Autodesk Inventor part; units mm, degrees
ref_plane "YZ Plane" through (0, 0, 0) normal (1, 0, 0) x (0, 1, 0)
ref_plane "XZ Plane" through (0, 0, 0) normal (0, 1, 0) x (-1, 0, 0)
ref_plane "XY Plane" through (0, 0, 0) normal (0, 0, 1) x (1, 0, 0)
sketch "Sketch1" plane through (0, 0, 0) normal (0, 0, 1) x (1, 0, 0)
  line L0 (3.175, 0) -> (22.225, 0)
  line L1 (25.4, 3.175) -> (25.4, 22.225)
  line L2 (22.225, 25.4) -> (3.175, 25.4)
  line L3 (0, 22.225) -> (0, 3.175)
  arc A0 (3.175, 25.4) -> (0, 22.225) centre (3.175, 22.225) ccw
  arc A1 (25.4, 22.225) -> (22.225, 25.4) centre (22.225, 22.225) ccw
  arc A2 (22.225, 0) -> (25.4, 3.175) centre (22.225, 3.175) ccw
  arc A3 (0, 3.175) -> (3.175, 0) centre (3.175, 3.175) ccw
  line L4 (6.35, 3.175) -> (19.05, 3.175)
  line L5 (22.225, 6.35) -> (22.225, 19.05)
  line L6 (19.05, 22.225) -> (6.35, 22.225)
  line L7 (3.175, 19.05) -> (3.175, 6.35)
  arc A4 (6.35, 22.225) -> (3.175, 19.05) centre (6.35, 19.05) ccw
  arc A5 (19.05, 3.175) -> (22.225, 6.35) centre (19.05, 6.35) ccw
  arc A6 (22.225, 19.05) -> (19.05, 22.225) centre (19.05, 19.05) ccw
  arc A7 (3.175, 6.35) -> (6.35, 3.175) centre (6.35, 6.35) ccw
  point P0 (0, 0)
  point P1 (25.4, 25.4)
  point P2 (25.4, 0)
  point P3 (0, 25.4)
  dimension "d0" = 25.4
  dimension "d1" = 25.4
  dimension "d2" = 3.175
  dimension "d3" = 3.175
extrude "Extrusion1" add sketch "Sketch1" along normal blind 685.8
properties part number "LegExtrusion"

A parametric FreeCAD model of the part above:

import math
import FreeCAD as App
import Part
import Sketcher
Q = App.Units.Quantity

doc = App.newDocument("Part")
body = doc.addObject("PartDesign::Body", "Body")

# Sketch on XY plane
sketch1 = body.newObject("Sketcher::SketchObject", "Sketch")
sketch1.AttachmentSupport = (doc.getObject("XY_Plane"), [""])
sketch1.MapMode = "FlatFace"
sketch1.addGeometry([
    Part.ArcOfCircle(Part.Circle(App.Vector(3.175, 3.175, 0), App.Vector(0, 0, 1), 3.175), math.radians(180), math.radians(270)),  # 0
    Part.LineSegment(App.Vector(3.175, 0, 0), App.Vector(22.225, 0, 0)),  # 1
    Part.ArcOfCircle(Part.Circle(App.Vector(22.225, 3.175, 0), App.Vector(0, 0, 1), 3.175), math.radians(-90), math.radians(0)),  # 2
    Part.LineSegment(App.Vector(25.4, 3.175, 0), App.Vector(25.4, 22.225, 0)),  # 3
    Part.ArcOfCircle(Part.Circle(App.Vector(22.225, 22.225, 0), App.Vector(0, 0, 1), 3.175), math.radians(0), math.radians(90)),  # 4
    Part.LineSegment(App.Vector(22.225, 25.4, 0), App.Vector(3.175, 25.4, 0)),  # 5
    Part.ArcOfCircle(Part.Circle(App.Vector(3.175, 22.225, 0), App.Vector(0, 0, 1), 3.175), math.radians(90), math.radians(180)),  # 6
    Part.LineSegment(App.Vector(0, 22.225, 0), App.Vector(0, 3.175, 0)),  # 7
    Part.LineSegment(App.Vector(19.05, 3.175, 0), App.Vector(6.35, 3.175, 0)),  # 8
    Part.ArcOfCircle(Part.Circle(App.Vector(6.35, 6.35, 0), App.Vector(0, 0, 1), 3.175), math.radians(180), math.radians(270)),  # 9
    Part.LineSegment(App.Vector(3.175, 6.35, 0), App.Vector(3.175, 19.05, 0)),  # 10
    Part.ArcOfCircle(Part.Circle(App.Vector(6.35, 19.05, 0), App.Vector(0, 0, 1), 3.175), math.radians(90), math.radians(180)),  # 11
    Part.LineSegment(App.Vector(6.35, 22.225, 0), App.Vector(19.05, 22.225, 0)),  # 12
    Part.ArcOfCircle(Part.Circle(App.Vector(19.05, 19.05, 0), App.Vector(0, 0, 1), 3.175), math.radians(0), math.radians(90)),  # 13
    Part.LineSegment(App.Vector(22.225, 19.05, 0), App.Vector(22.225, 6.35, 0)),  # 14
    Part.ArcOfCircle(Part.Circle(App.Vector(19.05, 6.35, 0), App.Vector(0, 0, 1), 3.175), math.radians(-90), math.radians(0)),  # 15
], False)
sketch1.addConstraint([
    Sketcher.Constraint("Tangent", 0, 2, 1, 1),
    Sketcher.Constraint("Tangent", 1, 2, 2, 1),
    Sketcher.Constraint("Tangent", 2, 2, 3, 1),
    Sketcher.Constraint("Tangent", 3, 2, 4, 1),
    Sketcher.Constraint("Tangent", 4, 2, 5, 1),
    Sketcher.Constraint("Tangent", 5, 2, 6, 1),
    Sketcher.Constraint("Tangent", 6, 2, 7, 1),
    Sketcher.Constraint("Tangent", 7, 2, 0, 1),
    Sketcher.Constraint("Tangent", 8, 2, 9, 2),
    Sketcher.Constraint("Tangent", 9, 1, 10, 1),
    Sketcher.Constraint("Tangent", 10, 2, 11, 2),
    Sketcher.Constraint("Tangent", 11, 1, 12, 1),
    Sketcher.Constraint("Tangent", 12, 2, 13, 2),
    Sketcher.Constraint("Tangent", 13, 1, 14, 1),
    Sketcher.Constraint("Tangent", 14, 2, 15, 2),
    Sketcher.Constraint("Tangent", 15, 1, 8, 1),
    Sketcher.Constraint("Horizontal", 1),
    Sketcher.Constraint("Vertical", 3),
    Sketcher.Constraint("Horizontal", 5),
    Sketcher.Constraint("Vertical", 7),
    Sketcher.Constraint("Horizontal", 8),
    Sketcher.Constraint("Vertical", 10),
    Sketcher.Constraint("Horizontal", 12),
    Sketcher.Constraint("Vertical", 14),
    Sketcher.Constraint("Equal", 0, 2),
    Sketcher.Constraint("Equal", 2, 4),
    Sketcher.Constraint("Equal", 4, 6),
    Sketcher.Constraint("Equal", 6, 9),
    Sketcher.Constraint("Equal", 9, 11),
    Sketcher.Constraint("Equal", 11, 13),
    Sketcher.Constraint("Equal", 13, 15),
    Sketcher.Constraint("PointOnObject", 0, 2, -1),
    Sketcher.Constraint("PointOnObject", 6, 2, -2),
    Sketcher.Constraint("Horizontal", 7, 2, 8, 2),
    Sketcher.Constraint("Horizontal", 6, 2, 11, 1),
    Sketcher.Constraint("Vertical", 5, 2, 9, 1),
    Sketcher.Constraint("Vertical", 4, 2, 13, 1),
    Sketcher.Constraint("Equal", 5, 3),
    Sketcher.Constraint("DistanceX", -1, 1, 2, 2, Q("1 in")),
    Sketcher.Constraint("Radius", 0, Q("0.125 in")),
])
pad1 = body.newObject("PartDesign::Pad", "Pad")
pad1.Profile = sketch1
pad1.Length = Q("27 in")

doc.recompute()
